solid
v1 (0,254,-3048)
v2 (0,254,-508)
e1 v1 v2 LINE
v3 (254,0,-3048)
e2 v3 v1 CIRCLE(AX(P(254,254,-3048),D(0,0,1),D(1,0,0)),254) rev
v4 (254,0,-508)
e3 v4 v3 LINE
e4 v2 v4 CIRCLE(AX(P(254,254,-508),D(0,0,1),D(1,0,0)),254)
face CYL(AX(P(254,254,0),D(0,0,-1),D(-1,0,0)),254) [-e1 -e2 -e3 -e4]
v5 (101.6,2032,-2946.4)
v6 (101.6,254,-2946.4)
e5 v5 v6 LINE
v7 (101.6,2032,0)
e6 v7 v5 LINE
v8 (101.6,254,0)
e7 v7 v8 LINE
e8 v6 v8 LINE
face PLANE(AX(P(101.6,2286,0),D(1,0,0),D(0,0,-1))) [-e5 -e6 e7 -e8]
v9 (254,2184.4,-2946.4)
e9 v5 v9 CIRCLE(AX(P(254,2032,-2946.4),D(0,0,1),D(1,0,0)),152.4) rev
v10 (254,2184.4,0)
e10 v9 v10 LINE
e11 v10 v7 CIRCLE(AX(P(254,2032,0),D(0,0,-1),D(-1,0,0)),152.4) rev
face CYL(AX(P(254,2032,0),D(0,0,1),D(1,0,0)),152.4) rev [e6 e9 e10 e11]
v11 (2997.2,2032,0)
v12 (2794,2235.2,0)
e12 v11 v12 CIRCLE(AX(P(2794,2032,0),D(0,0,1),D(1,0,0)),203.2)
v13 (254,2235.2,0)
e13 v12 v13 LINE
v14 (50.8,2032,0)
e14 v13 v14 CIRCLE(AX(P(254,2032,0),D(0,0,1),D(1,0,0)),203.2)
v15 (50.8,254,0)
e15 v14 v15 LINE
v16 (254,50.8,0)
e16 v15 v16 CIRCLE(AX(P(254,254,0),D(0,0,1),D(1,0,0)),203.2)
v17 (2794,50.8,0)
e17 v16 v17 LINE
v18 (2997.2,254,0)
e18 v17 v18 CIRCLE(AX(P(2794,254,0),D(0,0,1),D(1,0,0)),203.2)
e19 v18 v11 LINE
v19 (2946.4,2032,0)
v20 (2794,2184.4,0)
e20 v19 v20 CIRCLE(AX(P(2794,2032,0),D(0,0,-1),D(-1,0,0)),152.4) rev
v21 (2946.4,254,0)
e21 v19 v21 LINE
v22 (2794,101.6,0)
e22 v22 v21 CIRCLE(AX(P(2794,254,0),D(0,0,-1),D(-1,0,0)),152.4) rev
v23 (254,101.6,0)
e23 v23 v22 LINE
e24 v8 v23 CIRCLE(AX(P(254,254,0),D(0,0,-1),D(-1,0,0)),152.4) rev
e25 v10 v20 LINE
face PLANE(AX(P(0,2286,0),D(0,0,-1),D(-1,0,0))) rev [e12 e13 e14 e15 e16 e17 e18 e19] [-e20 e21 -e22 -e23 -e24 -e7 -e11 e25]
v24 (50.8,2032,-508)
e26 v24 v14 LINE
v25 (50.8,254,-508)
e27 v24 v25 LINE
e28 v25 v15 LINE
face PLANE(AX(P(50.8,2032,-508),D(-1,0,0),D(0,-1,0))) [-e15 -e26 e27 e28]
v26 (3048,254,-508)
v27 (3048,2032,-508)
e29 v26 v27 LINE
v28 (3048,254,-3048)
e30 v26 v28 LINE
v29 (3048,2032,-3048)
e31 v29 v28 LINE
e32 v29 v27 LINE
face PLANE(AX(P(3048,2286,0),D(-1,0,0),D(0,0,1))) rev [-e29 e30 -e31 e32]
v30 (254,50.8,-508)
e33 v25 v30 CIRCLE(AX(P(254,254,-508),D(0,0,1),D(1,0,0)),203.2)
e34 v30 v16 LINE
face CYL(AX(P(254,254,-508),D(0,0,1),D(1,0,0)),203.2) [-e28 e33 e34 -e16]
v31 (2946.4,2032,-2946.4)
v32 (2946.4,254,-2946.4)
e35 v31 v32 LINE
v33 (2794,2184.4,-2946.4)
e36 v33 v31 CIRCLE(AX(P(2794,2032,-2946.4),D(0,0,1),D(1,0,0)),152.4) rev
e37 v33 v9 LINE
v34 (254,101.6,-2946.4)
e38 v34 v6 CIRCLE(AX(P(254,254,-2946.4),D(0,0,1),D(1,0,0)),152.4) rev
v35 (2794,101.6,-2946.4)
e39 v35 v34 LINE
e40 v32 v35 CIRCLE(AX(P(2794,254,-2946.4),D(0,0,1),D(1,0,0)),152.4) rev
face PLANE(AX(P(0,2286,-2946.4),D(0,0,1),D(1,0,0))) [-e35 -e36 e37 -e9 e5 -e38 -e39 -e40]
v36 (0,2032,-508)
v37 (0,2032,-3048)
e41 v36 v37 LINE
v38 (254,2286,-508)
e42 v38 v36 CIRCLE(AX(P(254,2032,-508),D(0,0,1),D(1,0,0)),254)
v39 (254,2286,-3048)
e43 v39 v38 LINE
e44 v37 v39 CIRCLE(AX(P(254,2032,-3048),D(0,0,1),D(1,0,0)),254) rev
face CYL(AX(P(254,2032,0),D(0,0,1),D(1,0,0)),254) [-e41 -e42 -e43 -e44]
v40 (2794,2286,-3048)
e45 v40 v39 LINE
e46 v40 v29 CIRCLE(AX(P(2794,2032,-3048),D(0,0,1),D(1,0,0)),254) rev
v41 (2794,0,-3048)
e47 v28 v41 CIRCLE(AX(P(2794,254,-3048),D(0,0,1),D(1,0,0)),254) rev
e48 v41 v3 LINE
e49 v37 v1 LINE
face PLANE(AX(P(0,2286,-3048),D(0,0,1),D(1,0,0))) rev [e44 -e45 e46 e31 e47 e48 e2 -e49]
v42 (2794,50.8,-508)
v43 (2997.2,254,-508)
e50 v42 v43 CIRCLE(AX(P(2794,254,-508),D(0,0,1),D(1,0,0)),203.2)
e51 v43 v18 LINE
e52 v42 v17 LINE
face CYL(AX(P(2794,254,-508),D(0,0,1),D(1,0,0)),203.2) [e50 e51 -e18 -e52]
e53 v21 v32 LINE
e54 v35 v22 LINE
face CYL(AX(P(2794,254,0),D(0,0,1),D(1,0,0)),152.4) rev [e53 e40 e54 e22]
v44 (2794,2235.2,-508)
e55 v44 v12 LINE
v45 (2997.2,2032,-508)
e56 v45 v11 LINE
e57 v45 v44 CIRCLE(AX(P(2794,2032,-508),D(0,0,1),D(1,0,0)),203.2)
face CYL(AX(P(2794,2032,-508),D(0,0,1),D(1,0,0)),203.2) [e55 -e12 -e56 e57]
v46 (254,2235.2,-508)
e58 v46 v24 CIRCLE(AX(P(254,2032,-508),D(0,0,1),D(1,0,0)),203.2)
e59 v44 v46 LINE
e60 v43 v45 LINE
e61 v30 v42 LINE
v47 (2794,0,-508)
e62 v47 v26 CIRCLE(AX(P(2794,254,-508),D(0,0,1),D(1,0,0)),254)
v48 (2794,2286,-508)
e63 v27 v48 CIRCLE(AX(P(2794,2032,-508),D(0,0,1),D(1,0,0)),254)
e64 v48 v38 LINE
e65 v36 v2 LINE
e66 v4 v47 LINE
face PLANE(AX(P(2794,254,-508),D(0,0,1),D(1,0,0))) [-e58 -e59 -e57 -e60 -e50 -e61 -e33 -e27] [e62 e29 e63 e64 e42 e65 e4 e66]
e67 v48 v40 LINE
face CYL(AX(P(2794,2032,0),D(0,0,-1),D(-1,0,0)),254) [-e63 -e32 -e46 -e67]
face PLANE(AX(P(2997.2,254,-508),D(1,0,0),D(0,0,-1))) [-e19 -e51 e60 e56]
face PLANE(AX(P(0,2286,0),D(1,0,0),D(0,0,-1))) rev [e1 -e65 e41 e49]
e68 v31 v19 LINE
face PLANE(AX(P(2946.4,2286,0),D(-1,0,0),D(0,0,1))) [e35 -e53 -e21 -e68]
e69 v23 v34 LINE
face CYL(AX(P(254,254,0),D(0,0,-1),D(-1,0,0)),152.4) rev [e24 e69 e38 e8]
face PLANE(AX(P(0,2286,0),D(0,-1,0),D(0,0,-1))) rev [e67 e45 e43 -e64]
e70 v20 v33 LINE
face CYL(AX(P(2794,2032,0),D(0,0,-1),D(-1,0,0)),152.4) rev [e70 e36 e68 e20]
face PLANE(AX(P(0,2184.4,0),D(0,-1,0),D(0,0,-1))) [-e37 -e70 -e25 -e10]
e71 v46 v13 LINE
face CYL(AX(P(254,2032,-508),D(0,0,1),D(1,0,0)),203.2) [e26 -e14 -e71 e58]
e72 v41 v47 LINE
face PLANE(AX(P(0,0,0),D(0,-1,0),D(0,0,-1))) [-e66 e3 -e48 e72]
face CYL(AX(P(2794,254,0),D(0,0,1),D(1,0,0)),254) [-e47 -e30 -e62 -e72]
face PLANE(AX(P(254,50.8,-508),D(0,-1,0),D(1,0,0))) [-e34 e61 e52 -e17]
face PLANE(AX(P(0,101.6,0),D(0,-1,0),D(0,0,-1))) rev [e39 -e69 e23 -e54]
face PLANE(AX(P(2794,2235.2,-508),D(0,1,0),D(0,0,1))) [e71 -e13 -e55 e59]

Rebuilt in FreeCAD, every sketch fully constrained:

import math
import FreeCAD as App
import Part
import Sketcher
Q = App.Units.Quantity


def edges_at(feature, points):
    """Names of the edges that pass closest to the given points."""
    edges = feature.Shape.Edges
    near = lambda p: min(range(len(edges)), key=lambda i: edges[i].distToShape(Part.Vertex(*p))[0])
    return sorted({f"Edge{near(p) + 1}" for p in points})


def faces_at(feature, points):
    """Names of the faces that lie closest to the given points."""
    faces = feature.Shape.Faces
    near = lambda p: min(range(len(faces)), key=lambda i: faces[i].distToShape(Part.Vertex(*p))[0])
    return sorted({f"Face{near(p) + 1}" for p in points})


def add_polygon(sketch, points):
    """Adds a closed chain of lines whose ends are joined by coincident constraints."""
    first, n = sketch.GeometryCount, len(points)
    for a, b in zip(points, points[1:] + points[:1]):
        sketch.addGeometry(Part.LineSegment(App.Vector(*a, 0), App.Vector(*b, 0)), False)
    for i in range(n):
        sketch.addConstraint(Sketcher.Constraint("Coincident", first + i, 2, first + (i + 1) % n, 1))

doc = App.newDocument("Part")
body = doc.addObject("PartDesign::Body", "Body")

sketch1 = body.newObject("Sketcher::SketchObject", "Sketch")
sketch1.AttachmentSupport = (doc.getObject("XZ_Plane"), [""])
sketch1.MapMode = "FlatFace"
add_polygon(sketch1, [(0, -3048), (0, 0), (3048, 0), (3048, -3048)])
sketch1.addConstraint([
    Sketcher.Constraint("Vertical", 0),
    Sketcher.Constraint("Horizontal", 1),
    Sketcher.Constraint("Vertical", 2),
    Sketcher.Constraint("Horizontal", 3),
    Sketcher.Constraint("Coincident", 0, 2, -1, 1),
    Sketcher.Constraint("Equal", 3, 0),
    Sketcher.Constraint("DistanceX", 1, 1, 1, 2, Q("120 in")),
])
pad1 = body.newObject("PartDesign::Pad", "Pad")
pad1.Profile = sketch1
pad1.Length = Q("90 in")
pad1.Reversed = True
doc.recompute()

fillet = body.newObject("PartDesign::Fillet", "Fillet")
fillet.Base = (pad1, edges_at(pad1, [
    (3048, 2286, -1524),
    (0, 2286, -1524),
    (3048, 0, -1524),
    (0, 0, -1524),
]))
fillet.Radius = Q("10 in")
doc.recompute()

thickness = body.newObject("PartDesign::Thickness", "Thickness")
thickness.Base = (fillet, faces_at(fillet, [(1524, 1143, 0)]))
thickness.Value = Q("4 in")
thickness.Reversed = True
thickness.Join = "Intersection"

sketch2 = body.newObject("Sketcher::SketchObject", "Sketch001")
sketch2.AttachmentSupport = (doc.getObject("XY_Plane"), [""])
sketch2.MapMode = "FlatFace"
sketch2.addGeometry([
    Part.LineSegment(App.Vector(3048, 254, 0), App.Vector(3048, 2032, 0)),
    Part.ArcOfCircle(Part.Circle(App.Vector(2794, 2032, 0), App.Vector(0, 0, 1), 254), math.radians(0), math.radians(90)),
    Part.LineSegment(App.Vector(2794, 2286, 0), App.Vector(254, 2286, 0)),
    Part.ArcOfCircle(Part.Circle(App.Vector(254, 2032, 0), App.Vector(0, 0, 1), 254), math.radians(90), math.radians(180)),
    Part.LineSegment(App.Vector(0, 2032, 0), App.Vector(0, 254, 0)),
    Part.ArcOfCircle(Part.Circle(App.Vector(254, 254, 0), App.Vector(0, 0, 1), 254), math.radians(-180), math.radians(-90)),
    Part.LineSegment(App.Vector(254, 0, 0), App.Vector(2794, 0, 0)),
    Part.ArcOfCircle(Part.Circle(App.Vector(2794, 254, 0), App.Vector(0, 0, 1), 254), math.radians(-90), math.radians(0)),
    Part.LineSegment(App.Vector(2997, 2032, 0), App.Vector(2997, 254, 0)),
    Part.ArcOfCircle(Part.Circle(App.Vector(2794, 254, 0), App.Vector(0, 0, 1), 203), math.radians(-90), math.radians(0)),
    Part.LineSegment(App.Vector(2794, 51, 0), App.Vector(254, 51, 0)),
    Part.ArcOfCircle(Part.Circle(App.Vector(254, 254, 0), App.Vector(0, 0, 1), 203), math.radians(180), math.radians(270)),
    Part.LineSegment(App.Vector(51, 254, 0), App.Vector(51, 2032, 0)),
    Part.ArcOfCircle(Part.Circle(App.Vector(254, 2032, 0), App.Vector(0, 0, 1), 203), math.radians(90), math.radians(180)),
    Part.LineSegment(App.Vector(254, 2235, 0), App.Vector(2794, 2235, 0)),
    Part.ArcOfCircle(Part.Circle(App.Vector(2794, 2032, 0), App.Vector(0, 0, 1), 203), math.radians(0), math.radians(90)),
], False)
sketch2.addConstraint([
    Sketcher.Constraint("Tangent", 0, 2, 1, 1),
    Sketcher.Constraint("Tangent", 1, 2, 2, 1),
    Sketcher.Constraint("Tangent", 2, 2, 3, 1),
    Sketcher.Constraint("Tangent", 3, 2, 4, 1),
    Sketcher.Constraint("Tangent", 4, 2, 5, 1),
    Sketcher.Constraint("Tangent", 5, 2, 6, 1),
    Sketcher.Constraint("Tangent", 6, 2, 7, 1),
    Sketcher.Constraint("Tangent", 7, 2, 0, 1),
    Sketcher.Constraint("Tangent", 8, 2, 9, 2),
    Sketcher.Constraint("Tangent", 9, 1, 10, 1),
    Sketcher.Constraint("Tangent", 10, 2, 11, 2),
    Sketcher.Constraint("Tangent", 11, 1, 12, 1),
    Sketcher.Constraint("Tangent", 12, 2, 13, 2),
    Sketcher.Constraint("Tangent", 13, 1, 14, 1),
    Sketcher.Constraint("Tangent", 14, 2, 15, 2),
    Sketcher.Constraint("Tangent", 15, 1, 8, 1),
    Sketcher.Constraint("Vertical", 0),
    Sketcher.Constraint("Horizontal", 2),
    Sketcher.Constraint("Vertical", 4),
    Sketcher.Constraint("Horizontal", 6),
    Sketcher.Constraint("Vertical", 8),
    Sketcher.Constraint("Horizontal", 10),
    Sketcher.Constraint("Vertical", 12),
    Sketcher.Constraint("Horizontal", 14),
    Sketcher.Constraint("Coincident", 9, 3, 7, 3),
    Sketcher.Constraint("Coincident", 11, 3, 5, 3),
    Sketcher.Constraint("Coincident", 13, 3, 3, 3),
    Sketcher.Constraint("Equal", 1, 3),
    Sketcher.Constraint("Equal", 3, 5),
    Sketcher.Constraint("Equal", 5, 7),
    Sketcher.Constraint("Equal", 13, 15),
    Sketcher.Constraint("PointOnObject", 3, 2, -2),
    Sketcher.Constraint("PointOnObject", 5, 2, -1),
    Sketcher.Constraint("Radius", 1, Q("10 in")),
    Sketcher.Constraint("Radius", 9, Q("8 in")),
    Sketcher.Constraint("DistanceX", 2, 2, 2, 1, Q("100 in")),
    Sketcher.Constraint("DistanceY", 0, 1, 0, 2, Q("70 in")),
])
pocket1 = body.newObject("PartDesign::Pocket", "Pocket")
pocket1.Profile = sketch2
pocket1.Length = Q("20 in")

doc.recompute()
